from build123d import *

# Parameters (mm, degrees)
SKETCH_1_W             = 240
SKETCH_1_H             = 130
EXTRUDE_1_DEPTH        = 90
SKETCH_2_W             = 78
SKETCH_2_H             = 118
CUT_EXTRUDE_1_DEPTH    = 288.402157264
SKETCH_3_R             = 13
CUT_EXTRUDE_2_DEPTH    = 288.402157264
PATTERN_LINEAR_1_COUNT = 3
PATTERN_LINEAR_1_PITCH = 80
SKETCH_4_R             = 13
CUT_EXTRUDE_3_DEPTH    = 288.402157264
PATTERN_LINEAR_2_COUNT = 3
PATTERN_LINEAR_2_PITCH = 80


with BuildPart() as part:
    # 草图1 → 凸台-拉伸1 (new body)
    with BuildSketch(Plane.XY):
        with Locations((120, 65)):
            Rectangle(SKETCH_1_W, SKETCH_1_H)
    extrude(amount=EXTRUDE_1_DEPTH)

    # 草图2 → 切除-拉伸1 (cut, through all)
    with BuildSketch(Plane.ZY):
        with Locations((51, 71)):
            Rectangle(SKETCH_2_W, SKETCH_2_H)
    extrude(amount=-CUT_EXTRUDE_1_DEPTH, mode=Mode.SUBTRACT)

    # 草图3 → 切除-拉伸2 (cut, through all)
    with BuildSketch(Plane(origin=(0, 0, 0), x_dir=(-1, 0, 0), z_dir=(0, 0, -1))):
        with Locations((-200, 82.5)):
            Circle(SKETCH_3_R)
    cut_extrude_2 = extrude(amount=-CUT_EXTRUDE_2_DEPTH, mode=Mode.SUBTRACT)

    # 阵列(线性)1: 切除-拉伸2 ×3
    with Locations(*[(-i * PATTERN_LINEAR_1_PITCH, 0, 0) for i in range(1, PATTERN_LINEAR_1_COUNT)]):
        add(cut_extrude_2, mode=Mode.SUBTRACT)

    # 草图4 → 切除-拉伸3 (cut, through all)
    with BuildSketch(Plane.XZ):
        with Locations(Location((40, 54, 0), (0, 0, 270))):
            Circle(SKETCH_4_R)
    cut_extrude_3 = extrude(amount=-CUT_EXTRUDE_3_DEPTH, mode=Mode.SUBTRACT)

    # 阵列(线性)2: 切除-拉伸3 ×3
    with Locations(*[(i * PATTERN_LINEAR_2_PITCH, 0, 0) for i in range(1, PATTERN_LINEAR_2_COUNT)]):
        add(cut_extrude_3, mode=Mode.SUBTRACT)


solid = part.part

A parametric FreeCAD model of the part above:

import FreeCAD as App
import Part
import Sketcher
from FreeCAD import Vector


def add_polygon(sketch, points):
    """Adds a closed chain of lines whose ends are joined by coincident constraints."""
    first, n = sketch.GeometryCount, len(points)
    for a, b in zip(points, points[1:] + points[:1]):
        sketch.addGeometry(Part.LineSegment(App.Vector(*a, 0), App.Vector(*b, 0)), False)
    for i in range(n):
        sketch.addConstraint(Sketcher.Constraint("Coincident", first + i, 2, first + (i + 1) % n, 1))

doc = App.newDocument("Part")
params = doc.addObject("Spreadsheet::Sheet", "Params")
for row, (alias, value) in enumerate([
    ("sketch1_width", "240 mm"),
    ("sketch1_height", "130 mm"),
    ("pad1_length", "90 mm"),
    ("sketch2_width", "118 mm"),
    ("sketch2_height", "78 mm"),
    ("sketch3_diameter", "26 mm"),
    ("linearpattern_pitch", "80 mm"),
    ("sketch4_diameter", "26 mm"),
    ("linearpattern2_pitch", "80 mm"),
], start=1):
    params.set(f"A{row}", alias)
    params.set(f"B{row}", "=" + value)
    params.setAlias(f"B{row}", alias)

body = doc.addObject("PartDesign::Body", "Body")

# Sketch on XY plane
sketch1 = doc.addObject("Sketcher::SketchObject", "Sketch")
body.addObject(sketch1)
sketch1.AttachmentSupport = (doc.XY_Plane, [""])
sketch1.MapMode = "FlatFace"
add_polygon(sketch1, [(0, 130), (0, 0), (240, 0), (240, 130)])  # lines 0-3
sketch1.addConstraint([
    Sketcher.Constraint("Vertical", 0),
    Sketcher.Constraint("Horizontal", 1),
    Sketcher.Constraint("Vertical", 2),
    Sketcher.Constraint("Horizontal", 3),
    Sketcher.Constraint("Coincident", 0, 2, -1, 1),
    Sketcher.Constraint("DistanceX", 1, 1, 1, 2, 240.0),
    Sketcher.Constraint("DistanceY", 0, 2, 0, 1, 130.0),
])
sketch1.setExpression("Constraints[9]", "Params.sketch1_width")
sketch1.setExpression("Constraints[10]", "Params.sketch1_height")
pad1 = doc.addObject("PartDesign::Pad", "Pad")
body.addObject(pad1)
pad1.Profile = sketch1
pad1.setExpression("Length", "Params.pad1_length")

# Sketch on YZ plane
sketch2 = doc.addObject("Sketcher::SketchObject", "Sketch001")
body.addObject(sketch2)
sketch2.AttachmentSupport = (doc.YZ_Plane, [""])
sketch2.MapMode = "FlatFace"
add_polygon(sketch2, [(130, 12), (12, 12), (12, 90), (130, 90)])  # lines 0-3
sketch2.addConstraint([
    Sketcher.Constraint("Horizontal", 0),
    Sketcher.Constraint("Vertical", 1),
    Sketcher.Constraint("Horizontal", 2),
    Sketcher.Constraint("Vertical", 3),
    Sketcher.Constraint("DistanceX", 0, 2, 0, 1, 118.0),
    Sketcher.Constraint("DistanceY", 1, 1, 1, 2, 78.0),
    Sketcher.Constraint("DistanceX", -1, 1, 0, 2, 12.0),
    Sketcher.Constraint("DistanceY", -1, 1, 0, 2, 12.0),
])
sketch2.setExpression("Constraints[8]", "Params.sketch2_width")
sketch2.setExpression("Constraints[9]", "Params.sketch2_height")
pocket1 = doc.addObject("PartDesign::Pocket", "Pocket")
body.addObject(pocket1)
pocket1.Profile = sketch2
pocket1.Type = "ThroughAll"
pocket1.Reversed = True

# Sketch on XY plane
sketch3 = doc.addObject("Sketcher::SketchObject", "Sketch002")
body.addObject(sketch3)
sketch3.AttachmentSupport = (doc.XY_Plane, [""])
sketch3.MapMode = "FlatFace"
sketch3.addGeometry(Part.Circle(Vector(200, 82, 0), Vector(0, 0, 1), 13), False)
sketch3.addConstraint([
    Sketcher.Constraint("Diameter", 0, 26.0),
    Sketcher.Constraint("DistanceX", -1, 1, 0, 3, 200.0),
    Sketcher.Constraint("DistanceY", -1, 1, 0, 3, 82.5),
])
sketch3.setExpression("Constraints[0]", "Params.sketch3_diameter")
pocket2 = doc.addObject("PartDesign::Pocket", "Pocket001")
body.addObject(pocket2)
pocket2.Profile = sketch3
pocket2.Type = "ThroughAll"
pocket2.Reversed = True
doc.recompute()

linearpattern = doc.addObject("PartDesign::LinearPattern", "LinearPattern")
body.addObject(linearpattern)
linearpattern.Originals = [pocket2]
linearpattern.Direction = (doc.X_Axis, [""])
linearpattern.Mode = "offset"
linearpattern.setExpression("Offset", "Params.linearpattern_pitch")
linearpattern.Occurrences = 3
linearpattern.Reversed = True
body.Tip = linearpattern

# Sketch on XZ plane
sketch4 = doc.addObject("Sketcher::SketchObject", "Sketch003")
body.addObject(sketch4)
sketch4.AttachmentSupport = (doc.XZ_Plane, [""])
sketch4.MapMode = "FlatFace"
sketch4.addGeometry(Part.Circle(Vector(40, 54, 0), Vector(0, 0, 1), 13), False)
sketch4.addConstraint([
    Sketcher.Constraint("Diameter", 0, 26.0),
    Sketcher.Constraint("DistanceX", -1, 1, 0, 3, 40.0),
    Sketcher.Constraint("DistanceY", -1, 1, 0, 3, 54.0),
])
sketch4.setExpression("Constraints[0]", "Params.sketch4_diameter")
pocket3 = doc.addObject("PartDesign::Pocket", "Pocket002")
body.addObject(pocket3)
pocket3.Profile = sketch4
pocket3.Type = "ThroughAll"
doc.recompute()

linearpattern2 = doc.addObject("PartDesign::LinearPattern", "LinearPattern001")
body.addObject(linearpattern2)
linearpattern2.Originals = [pocket3]
linearpattern2.Direction = (doc.X_Axis, [""])
linearpattern2.Mode = "offset"
linearpattern2.setExpression("Offset", "Params.linearpattern2_pitch")
linearpattern2.Occurrences = 3
body.Tip = linearpattern2

doc.recompute()
